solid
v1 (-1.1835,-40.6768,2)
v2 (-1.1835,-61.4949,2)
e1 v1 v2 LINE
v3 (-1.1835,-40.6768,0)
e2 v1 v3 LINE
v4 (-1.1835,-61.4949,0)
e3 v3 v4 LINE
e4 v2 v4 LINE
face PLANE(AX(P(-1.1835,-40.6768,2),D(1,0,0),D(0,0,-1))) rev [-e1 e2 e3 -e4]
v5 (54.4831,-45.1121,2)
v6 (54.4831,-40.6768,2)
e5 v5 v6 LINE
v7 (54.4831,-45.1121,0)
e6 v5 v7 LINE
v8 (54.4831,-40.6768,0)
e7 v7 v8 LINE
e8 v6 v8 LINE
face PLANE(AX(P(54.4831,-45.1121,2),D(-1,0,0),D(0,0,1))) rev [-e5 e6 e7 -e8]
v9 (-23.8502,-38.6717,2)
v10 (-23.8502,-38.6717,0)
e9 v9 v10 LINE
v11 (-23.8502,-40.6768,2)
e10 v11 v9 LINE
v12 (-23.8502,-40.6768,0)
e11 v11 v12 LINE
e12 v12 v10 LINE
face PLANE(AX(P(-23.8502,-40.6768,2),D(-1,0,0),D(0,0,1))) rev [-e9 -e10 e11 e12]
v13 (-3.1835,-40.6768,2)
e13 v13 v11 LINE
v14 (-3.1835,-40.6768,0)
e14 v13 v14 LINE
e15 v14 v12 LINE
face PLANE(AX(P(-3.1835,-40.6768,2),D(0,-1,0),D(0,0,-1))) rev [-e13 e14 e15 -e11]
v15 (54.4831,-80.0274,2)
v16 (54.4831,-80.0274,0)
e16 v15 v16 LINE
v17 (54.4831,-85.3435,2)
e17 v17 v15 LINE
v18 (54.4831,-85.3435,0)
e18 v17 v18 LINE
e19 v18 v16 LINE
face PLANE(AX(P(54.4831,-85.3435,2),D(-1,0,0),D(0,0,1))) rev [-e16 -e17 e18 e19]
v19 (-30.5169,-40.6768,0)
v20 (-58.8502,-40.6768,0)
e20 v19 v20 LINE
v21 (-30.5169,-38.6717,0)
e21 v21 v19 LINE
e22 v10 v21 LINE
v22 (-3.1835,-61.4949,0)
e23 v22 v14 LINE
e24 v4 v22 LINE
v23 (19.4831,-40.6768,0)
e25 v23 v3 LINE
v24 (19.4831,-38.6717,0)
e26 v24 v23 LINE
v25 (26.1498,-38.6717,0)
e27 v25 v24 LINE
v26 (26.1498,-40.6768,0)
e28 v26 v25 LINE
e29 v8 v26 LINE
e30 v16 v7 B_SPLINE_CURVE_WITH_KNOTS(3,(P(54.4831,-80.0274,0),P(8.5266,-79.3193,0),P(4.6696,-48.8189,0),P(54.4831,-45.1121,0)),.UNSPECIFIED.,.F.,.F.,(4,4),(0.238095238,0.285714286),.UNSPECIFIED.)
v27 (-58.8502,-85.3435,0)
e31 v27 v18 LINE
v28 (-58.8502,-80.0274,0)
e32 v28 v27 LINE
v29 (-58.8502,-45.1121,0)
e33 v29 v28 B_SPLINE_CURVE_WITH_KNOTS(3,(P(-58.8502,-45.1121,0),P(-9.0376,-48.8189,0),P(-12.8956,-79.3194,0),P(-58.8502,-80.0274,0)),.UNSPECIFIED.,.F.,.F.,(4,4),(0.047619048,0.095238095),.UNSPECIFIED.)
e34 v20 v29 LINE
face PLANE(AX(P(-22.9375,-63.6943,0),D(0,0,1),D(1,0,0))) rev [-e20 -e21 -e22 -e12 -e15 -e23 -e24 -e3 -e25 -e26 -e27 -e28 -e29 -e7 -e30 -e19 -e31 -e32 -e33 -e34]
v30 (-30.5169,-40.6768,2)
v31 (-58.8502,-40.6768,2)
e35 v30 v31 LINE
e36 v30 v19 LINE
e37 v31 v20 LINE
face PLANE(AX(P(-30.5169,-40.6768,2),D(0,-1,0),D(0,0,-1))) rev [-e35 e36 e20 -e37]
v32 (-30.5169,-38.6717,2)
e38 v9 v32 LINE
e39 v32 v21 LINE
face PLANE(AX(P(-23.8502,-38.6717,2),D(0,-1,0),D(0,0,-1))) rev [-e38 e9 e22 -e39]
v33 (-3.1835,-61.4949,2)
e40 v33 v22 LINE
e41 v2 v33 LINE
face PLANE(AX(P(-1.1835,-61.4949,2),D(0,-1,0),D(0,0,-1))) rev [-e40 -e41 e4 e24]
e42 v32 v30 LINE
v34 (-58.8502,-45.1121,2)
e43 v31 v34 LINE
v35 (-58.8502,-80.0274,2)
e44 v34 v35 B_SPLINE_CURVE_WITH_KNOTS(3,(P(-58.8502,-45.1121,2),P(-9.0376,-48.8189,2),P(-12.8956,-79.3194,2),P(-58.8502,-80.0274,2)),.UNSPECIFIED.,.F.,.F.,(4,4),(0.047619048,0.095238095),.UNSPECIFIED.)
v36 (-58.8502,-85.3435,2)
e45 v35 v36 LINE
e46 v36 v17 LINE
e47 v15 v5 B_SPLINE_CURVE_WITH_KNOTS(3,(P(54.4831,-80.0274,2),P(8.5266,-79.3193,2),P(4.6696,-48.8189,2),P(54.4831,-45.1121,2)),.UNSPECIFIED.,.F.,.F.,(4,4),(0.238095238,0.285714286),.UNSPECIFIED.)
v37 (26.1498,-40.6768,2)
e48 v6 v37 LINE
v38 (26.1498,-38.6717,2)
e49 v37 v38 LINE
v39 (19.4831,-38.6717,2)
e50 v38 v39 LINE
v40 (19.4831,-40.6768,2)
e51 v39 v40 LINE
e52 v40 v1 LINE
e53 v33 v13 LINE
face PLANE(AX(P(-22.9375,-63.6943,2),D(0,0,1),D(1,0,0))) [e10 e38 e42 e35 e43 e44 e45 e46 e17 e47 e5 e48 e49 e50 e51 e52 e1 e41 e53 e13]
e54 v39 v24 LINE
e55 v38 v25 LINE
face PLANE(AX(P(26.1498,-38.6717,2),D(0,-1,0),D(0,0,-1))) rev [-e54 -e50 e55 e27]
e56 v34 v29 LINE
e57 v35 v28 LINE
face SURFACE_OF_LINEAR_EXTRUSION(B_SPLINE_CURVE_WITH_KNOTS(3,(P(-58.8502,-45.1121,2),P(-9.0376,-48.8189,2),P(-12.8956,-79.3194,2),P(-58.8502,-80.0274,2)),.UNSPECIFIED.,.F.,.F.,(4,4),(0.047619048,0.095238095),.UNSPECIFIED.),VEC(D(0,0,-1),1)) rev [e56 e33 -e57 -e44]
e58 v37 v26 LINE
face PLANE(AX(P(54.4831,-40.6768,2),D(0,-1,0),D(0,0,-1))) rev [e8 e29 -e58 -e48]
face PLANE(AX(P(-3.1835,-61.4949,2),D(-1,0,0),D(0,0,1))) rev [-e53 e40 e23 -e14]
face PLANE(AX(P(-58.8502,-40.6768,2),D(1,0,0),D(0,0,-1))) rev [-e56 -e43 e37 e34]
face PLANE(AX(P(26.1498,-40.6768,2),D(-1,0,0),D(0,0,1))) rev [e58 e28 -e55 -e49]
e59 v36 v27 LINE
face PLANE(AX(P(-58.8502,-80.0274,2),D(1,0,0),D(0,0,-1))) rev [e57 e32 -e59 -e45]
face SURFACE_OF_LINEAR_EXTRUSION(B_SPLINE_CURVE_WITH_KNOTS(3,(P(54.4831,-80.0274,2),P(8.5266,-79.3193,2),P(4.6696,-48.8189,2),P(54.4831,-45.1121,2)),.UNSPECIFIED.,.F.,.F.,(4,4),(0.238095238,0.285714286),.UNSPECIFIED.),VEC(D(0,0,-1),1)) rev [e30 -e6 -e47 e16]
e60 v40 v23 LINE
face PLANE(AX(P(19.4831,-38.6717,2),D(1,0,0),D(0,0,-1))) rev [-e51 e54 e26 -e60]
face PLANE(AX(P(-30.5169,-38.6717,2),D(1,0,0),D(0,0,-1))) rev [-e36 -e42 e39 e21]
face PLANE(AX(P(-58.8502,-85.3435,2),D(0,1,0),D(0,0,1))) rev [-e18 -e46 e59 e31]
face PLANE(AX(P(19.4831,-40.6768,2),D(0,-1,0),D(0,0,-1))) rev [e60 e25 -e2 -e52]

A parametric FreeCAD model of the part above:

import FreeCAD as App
import Part
import Sketcher

doc = App.newDocument("Part")
body = doc.addObject("PartDesign::Body", "Body")

# Sketch on XY plane
sketch1 = body.newObject("Sketcher::SketchObject", "Sketch")
sketch1.AttachmentSupport = (doc.getObject("XY_Plane"), [""])
sketch1.MapMode = "FlatFace"
sketch1.addGeometry([
    Part.LineSegment(App.Vector(-58.8502, -40.6768, 0), App.Vector(-58.8502, -45.1121, 0)),  # 0
    Part.BSplineCurve([App.Vector(-58.8502, -45.1121, 0), App.Vector(-9.0376, -48.8189, 0), App.Vector(-12.8956, -79.3194, 0), App.Vector(-58.8502, -80.0274, 0)], [4, 4], [0.047619048, 0.095238095], False, 3, [1, 1, 1, 1], False),  # 1
    Part.LineSegment(App.Vector(-58.8502, -80.0274, 0), App.Vector(-58.8502, -85.3435, 0)),  # 2
    Part.LineSegment(App.Vector(-58.8502, -85.3435, 0), App.Vector(54.4831, -85.3435, 0)),  # 3
    Part.LineSegment(App.Vector(54.4831, -85.3435, 0), App.Vector(54.4831, -80.0274, 0)),  # 4
    Part.BSplineCurve([App.Vector(54.4831, -80.0274, 0), App.Vector(8.5266, -79.3193, 0), App.Vector(4.6696, -48.8189, 0), App.Vector(54.4831, -45.1121, 0)], [4, 4], [0.238095238, 0.285714286], False, 3, [1, 1, 1, 1], False),  # 5
    Part.LineSegment(App.Vector(54.4831, -45.1121, 0), App.Vector(54.4831, -40.6768, 0)),  # 6
    Part.LineSegment(App.Vector(54.4831, -40.6768, 0), App.Vector(26.1498, -40.6768, 0)),  # 7
    Part.LineSegment(App.Vector(26.1498, -40.6768, 0), App.Vector(26.1498, -38.6717, 0)),  # 8
    Part.LineSegment(App.Vector(26.1498, -38.6717, 0), App.Vector(19.4831, -38.6717, 0)),  # 9
    Part.LineSegment(App.Vector(19.4831, -38.6717, 0), App.Vector(19.4831, -40.6768, 0)),  # 10
    Part.LineSegment(App.Vector(19.4831, -40.6768, 0), App.Vector(-1.1835, -40.6768, 0)),  # 11
    Part.LineSegment(App.Vector(-1.1835, -40.6768, 0), App.Vector(-1.1835, -61.4949, 0)),  # 12
    Part.LineSegment(App.Vector(-1.1835, -61.4949, 0), App.Vector(-3.1835, -61.4949, 0)),  # 13
    Part.LineSegment(App.Vector(-3.1835, -61.4949, 0), App.Vector(-3.1835, -40.6768, 0)),  # 14
    Part.LineSegment(App.Vector(-3.1835, -40.6768, 0), App.Vector(-23.8502, -40.6768, 0)),  # 15
    Part.LineSegment(App.Vector(-23.8502, -40.6768, 0), App.Vector(-23.8502, -38.6717, 0)),  # 16
    Part.LineSegment(App.Vector(-23.8502, -38.6717, 0), App.Vector(-30.5169, -38.6717, 0)),  # 17
    Part.LineSegment(App.Vector(-30.5169, -38.6717, 0), App.Vector(-30.5169, -40.6768, 0)),  # 18
    Part.LineSegment(App.Vector(-30.5169, -40.6768, 0), App.Vector(-58.8502, -40.6768, 0)),  # 19
], False)
sketch1.addConstraint([
    Sketcher.Constraint("Block", 1),
    Sketcher.Constraint("Block", 5),
    Sketcher.Constraint("Coincident", 0, 2, 1, 1),
    Sketcher.Constraint("Coincident", 1, 2, 2, 1),
    Sketcher.Constraint("Coincident", 2, 2, 3, 1),
    Sketcher.Constraint("Coincident", 3, 2, 4, 1),
    Sketcher.Constraint("Coincident", 4, 2, 5, 1),
    Sketcher.Constraint("Coincident", 5, 2, 6, 1),
    Sketcher.Constraint("Coincident", 6, 2, 7, 1),
    Sketcher.Constraint("Coincident", 7, 2, 8, 1),
    Sketcher.Constraint("Coincident", 8, 2, 9, 1),
    Sketcher.Constraint("Coincident", 9, 2, 10, 1),
    Sketcher.Constraint("Coincident", 10, 2, 11, 1),
    Sketcher.Constraint("Coincident", 11, 2, 12, 1),
    Sketcher.Constraint("Coincident", 12, 2, 13, 1),
    Sketcher.Constraint("Coincident", 13, 2, 14, 1),
    Sketcher.Constraint("Coincident", 14, 2, 15, 1),
    Sketcher.Constraint("Coincident", 15, 2, 16, 1),
    Sketcher.Constraint("Coincident", 16, 2, 17, 1),
    Sketcher.Constraint("Coincident", 17, 2, 18, 1),
    Sketcher.Constraint("Coincident", 18, 2, 19, 1),
    Sketcher.Constraint("Coincident", 19, 2, 0, 1),
    Sketcher.Constraint("Vertical", 0),
    Sketcher.Constraint("Vertical", 2),
    Sketcher.Constraint("Horizontal", 3),
    Sketcher.Constraint("Vertical", 4),
    Sketcher.Constraint("Vertical", 6),
    Sketcher.Constraint("Horizontal", 7),
    Sketcher.Constraint("Vertical", 8),
    Sketcher.Constraint("Horizontal", 9),
    Sketcher.Constraint("Vertical", 10),
    Sketcher.Constraint("Horizontal", 11),
    Sketcher.Constraint("Vertical", 12),
    Sketcher.Constraint("Horizontal", 13),
    Sketcher.Constraint("Vertical", 14),
    Sketcher.Constraint("Horizontal", 15),
    Sketcher.Constraint("Vertical", 16),
    Sketcher.Constraint("Horizontal", 17),
    Sketcher.Constraint("Vertical", 18),
    Sketcher.Constraint("Horizontal", 19),
    Sketcher.Constraint("Horizontal", 7, 2, 10, 2),
    Sketcher.Constraint("Horizontal", 11, 2, 14, 2),
    Sketcher.Constraint("Horizontal", 9, 2, 16, 2),
    Sketcher.Constraint("Horizontal", 15, 2, 18, 2),
    Sketcher.Constraint("Equal", 9, 17),
    Sketcher.Constraint("Equal", 7, 19),
    Sketcher.Constraint("DistanceX", 13, 2, 13, 1, 2.0),
    Sketcher.Constraint("DistanceX", 0, 2, 7, 2, 85.0),
    Sketcher.Constraint("DistanceX", 9, 2, 6, 2, 35.0),
    Sketcher.Constraint("DistanceX", 11, 2, 11, 1, 20.6666),
    Sketcher.Constraint("DistanceY", 0, 2, 0, 1, 4.4353),
    Sketcher.Constraint("DistanceY", 2, 2, 2, 1, 5.3161),
    Sketcher.Constraint("DistanceY", 8, 1, 8, 2, 2.0051),
    Sketcher.Constraint("DistanceY", 12, 2, 12, 1, 20.8181),
])
pad1 = body.newObject("PartDesign::Pad", "Pad")
pad1.Profile = sketch1
pad1.Length = 2

doc.recompute()
